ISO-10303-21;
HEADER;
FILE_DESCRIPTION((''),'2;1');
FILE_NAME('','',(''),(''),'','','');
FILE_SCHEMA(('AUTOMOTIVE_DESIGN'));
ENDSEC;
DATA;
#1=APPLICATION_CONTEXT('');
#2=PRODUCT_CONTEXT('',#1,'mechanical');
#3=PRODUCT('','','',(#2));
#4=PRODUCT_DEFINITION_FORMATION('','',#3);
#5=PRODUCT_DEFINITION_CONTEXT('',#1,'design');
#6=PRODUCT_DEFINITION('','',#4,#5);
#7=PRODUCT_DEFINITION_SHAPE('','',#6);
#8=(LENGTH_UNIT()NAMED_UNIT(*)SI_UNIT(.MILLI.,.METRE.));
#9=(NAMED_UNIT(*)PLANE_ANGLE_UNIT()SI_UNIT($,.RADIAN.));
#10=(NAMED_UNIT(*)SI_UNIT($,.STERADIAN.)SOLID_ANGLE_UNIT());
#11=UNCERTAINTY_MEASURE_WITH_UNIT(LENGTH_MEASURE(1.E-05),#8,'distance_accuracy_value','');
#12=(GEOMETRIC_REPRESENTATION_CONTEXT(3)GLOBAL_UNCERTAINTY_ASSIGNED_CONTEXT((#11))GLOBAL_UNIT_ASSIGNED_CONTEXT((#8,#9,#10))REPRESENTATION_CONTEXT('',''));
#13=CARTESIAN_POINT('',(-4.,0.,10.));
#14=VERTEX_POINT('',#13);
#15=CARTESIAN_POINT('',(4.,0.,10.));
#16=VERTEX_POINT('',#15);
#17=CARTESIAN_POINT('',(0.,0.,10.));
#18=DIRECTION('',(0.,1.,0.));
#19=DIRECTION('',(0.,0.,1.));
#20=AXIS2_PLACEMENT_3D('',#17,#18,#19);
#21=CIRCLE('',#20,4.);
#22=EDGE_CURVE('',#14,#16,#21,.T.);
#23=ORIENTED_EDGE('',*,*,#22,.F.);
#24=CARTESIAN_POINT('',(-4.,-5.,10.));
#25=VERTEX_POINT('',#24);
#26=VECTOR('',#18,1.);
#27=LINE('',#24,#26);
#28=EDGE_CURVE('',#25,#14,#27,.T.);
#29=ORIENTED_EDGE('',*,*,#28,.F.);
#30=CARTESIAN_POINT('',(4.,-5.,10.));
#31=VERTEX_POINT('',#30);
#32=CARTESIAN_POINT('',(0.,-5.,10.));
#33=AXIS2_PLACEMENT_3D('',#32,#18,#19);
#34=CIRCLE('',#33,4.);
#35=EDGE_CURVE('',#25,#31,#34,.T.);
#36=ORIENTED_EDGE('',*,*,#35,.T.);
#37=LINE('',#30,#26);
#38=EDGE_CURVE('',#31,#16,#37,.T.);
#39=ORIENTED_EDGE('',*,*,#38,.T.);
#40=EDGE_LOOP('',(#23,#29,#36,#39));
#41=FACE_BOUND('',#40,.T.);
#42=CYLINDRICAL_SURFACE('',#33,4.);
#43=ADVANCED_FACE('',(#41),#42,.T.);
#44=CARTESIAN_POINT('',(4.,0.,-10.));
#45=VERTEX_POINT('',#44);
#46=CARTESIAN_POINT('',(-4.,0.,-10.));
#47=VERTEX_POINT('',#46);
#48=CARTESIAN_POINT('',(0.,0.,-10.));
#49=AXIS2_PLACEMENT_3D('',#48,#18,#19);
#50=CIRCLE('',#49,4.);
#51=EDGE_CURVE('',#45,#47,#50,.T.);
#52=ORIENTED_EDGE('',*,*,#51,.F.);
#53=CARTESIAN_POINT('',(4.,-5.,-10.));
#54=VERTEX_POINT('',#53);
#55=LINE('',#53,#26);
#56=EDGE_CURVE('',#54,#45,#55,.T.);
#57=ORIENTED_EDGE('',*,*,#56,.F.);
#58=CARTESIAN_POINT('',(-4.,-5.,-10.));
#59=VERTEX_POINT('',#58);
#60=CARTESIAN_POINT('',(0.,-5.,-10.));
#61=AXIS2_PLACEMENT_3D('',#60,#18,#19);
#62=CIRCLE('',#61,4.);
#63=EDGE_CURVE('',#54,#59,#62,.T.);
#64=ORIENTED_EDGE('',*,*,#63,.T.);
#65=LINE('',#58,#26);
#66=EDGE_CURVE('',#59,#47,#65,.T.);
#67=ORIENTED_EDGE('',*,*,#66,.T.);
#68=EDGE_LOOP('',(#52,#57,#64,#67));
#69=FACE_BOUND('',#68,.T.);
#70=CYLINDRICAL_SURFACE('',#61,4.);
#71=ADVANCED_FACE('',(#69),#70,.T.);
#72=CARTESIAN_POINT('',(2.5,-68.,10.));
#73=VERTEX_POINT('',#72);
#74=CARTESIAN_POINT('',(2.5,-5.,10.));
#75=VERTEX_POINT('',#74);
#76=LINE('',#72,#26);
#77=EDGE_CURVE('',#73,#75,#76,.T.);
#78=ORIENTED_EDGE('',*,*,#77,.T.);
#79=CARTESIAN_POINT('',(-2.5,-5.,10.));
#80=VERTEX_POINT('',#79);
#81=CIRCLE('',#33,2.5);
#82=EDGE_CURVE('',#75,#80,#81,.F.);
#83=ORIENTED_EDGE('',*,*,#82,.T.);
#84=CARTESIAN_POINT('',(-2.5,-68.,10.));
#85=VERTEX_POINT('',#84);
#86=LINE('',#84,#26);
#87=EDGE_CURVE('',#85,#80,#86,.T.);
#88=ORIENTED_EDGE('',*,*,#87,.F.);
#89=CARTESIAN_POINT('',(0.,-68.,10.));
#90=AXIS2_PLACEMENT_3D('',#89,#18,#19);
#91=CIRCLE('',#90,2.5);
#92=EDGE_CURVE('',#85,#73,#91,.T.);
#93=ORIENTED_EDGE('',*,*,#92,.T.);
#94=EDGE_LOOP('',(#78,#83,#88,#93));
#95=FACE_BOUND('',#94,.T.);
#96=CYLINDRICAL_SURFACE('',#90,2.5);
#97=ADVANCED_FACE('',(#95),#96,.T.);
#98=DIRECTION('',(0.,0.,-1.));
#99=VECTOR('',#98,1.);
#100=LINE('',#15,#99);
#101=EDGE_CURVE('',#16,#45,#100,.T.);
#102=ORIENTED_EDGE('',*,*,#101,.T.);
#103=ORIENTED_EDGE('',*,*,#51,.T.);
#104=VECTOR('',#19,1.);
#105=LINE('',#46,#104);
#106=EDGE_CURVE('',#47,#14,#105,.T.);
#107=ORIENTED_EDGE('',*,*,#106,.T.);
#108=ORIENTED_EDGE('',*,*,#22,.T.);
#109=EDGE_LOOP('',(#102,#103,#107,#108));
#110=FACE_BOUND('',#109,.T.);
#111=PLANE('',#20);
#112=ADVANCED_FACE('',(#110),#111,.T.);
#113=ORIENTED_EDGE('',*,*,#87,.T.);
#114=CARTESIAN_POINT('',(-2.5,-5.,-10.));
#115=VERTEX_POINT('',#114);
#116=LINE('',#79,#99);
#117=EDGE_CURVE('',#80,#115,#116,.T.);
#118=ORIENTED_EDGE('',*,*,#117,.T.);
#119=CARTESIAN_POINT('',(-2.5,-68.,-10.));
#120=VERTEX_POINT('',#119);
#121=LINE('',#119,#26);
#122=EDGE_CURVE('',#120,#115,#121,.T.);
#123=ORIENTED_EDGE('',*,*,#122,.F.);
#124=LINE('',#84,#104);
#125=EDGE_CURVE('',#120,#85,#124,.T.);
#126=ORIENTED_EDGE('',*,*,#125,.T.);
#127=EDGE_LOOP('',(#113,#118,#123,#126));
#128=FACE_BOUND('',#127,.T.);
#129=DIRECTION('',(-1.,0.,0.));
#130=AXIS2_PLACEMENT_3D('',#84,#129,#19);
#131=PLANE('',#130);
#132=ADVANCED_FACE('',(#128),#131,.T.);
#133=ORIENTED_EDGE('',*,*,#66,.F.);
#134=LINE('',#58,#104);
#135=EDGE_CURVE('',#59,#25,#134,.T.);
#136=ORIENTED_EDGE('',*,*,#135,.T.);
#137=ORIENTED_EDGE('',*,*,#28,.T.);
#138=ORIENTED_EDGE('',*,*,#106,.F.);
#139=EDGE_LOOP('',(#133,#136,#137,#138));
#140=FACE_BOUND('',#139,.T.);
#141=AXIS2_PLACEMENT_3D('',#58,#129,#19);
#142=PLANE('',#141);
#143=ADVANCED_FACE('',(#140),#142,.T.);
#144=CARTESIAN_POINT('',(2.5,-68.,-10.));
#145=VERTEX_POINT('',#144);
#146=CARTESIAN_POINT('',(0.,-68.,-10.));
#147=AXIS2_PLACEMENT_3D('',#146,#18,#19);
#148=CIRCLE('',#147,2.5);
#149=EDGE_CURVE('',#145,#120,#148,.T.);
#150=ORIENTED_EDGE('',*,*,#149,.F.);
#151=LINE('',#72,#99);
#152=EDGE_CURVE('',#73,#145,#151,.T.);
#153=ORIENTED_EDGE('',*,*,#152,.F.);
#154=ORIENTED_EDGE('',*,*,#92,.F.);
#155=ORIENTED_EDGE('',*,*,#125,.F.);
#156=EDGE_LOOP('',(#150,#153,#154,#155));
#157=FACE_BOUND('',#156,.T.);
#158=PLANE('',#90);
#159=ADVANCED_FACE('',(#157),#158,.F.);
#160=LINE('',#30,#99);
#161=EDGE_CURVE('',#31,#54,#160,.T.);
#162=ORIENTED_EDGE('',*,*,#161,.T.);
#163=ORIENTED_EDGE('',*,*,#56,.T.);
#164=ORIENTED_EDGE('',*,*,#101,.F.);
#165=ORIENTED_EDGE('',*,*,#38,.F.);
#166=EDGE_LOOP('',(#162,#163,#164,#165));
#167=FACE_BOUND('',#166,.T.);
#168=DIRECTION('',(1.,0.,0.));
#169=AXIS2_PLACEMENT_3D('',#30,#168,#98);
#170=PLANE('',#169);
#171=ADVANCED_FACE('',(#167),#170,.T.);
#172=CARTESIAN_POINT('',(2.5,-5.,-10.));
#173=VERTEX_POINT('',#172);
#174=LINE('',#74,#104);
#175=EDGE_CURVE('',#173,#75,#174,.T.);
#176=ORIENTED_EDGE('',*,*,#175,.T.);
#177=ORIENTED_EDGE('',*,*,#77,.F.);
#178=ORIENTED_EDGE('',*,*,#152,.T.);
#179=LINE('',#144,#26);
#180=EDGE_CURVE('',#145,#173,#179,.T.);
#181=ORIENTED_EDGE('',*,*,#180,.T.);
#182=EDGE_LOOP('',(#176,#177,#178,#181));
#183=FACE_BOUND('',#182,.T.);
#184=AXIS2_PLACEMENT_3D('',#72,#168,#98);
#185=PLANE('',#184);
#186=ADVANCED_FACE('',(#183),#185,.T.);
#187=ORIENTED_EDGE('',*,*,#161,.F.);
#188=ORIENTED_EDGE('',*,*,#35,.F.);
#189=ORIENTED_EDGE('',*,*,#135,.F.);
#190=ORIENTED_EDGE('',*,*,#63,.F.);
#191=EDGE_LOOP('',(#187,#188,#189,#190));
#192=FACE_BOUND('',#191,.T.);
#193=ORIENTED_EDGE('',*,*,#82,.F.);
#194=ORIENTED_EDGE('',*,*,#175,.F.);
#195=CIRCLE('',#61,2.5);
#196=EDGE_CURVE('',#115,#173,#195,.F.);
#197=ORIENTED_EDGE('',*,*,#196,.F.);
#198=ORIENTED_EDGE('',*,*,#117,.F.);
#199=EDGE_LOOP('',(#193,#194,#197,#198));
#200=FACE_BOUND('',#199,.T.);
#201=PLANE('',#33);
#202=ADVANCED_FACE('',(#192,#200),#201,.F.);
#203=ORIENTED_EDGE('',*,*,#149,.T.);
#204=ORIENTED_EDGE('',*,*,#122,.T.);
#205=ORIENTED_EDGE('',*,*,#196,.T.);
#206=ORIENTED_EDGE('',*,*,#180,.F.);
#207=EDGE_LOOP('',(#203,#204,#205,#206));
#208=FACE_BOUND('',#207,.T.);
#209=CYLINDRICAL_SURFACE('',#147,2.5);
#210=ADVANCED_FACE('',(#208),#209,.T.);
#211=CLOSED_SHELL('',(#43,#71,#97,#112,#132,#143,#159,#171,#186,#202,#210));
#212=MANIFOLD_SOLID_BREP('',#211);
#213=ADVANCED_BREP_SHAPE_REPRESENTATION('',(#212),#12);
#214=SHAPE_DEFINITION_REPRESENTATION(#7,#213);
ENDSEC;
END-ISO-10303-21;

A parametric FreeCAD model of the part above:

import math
import FreeCAD as App
import Part
import Sketcher

V = App.Vector

doc = App.newDocument("Part")
params = doc.addObject("Spreadsheet::Sheet", "Params")
for row, (alias, value) in enumerate([
    ("sketch1_radius", "2.5 mm"),
    ("sketch1_height", "20 mm"),
    ("pad1_length", "68 mm"),
    ("sketch2_radius", "4 mm"),
    ("sketch2_height", "20 mm"),
    ("pad2_length", "5 mm"),
], start=1):
    params.set(f"A{row}", alias)
    params.set(f"B{row}", "=" + value)
    params.setAlias(f"B{row}", alias)

body = doc.addObject("PartDesign::Body", "Body")

sketch1 = body.newObject("Sketcher::SketchObject", "Sketch")
sketch1.AttachmentSupport = (doc.getObject("XZ_Plane"), [""])
sketch1.MapMode = "FlatFace"
sketch1.addGeometry([
    Part.LineSegment(V(-2.5, -10, 0), V(-2.5, 10, 0)),
    Part.ArcOfCircle(Part.Circle(V(0, 10, 0), V(0, 0, 1), 2.5), math.radians(0), math.radians(180)),
    Part.LineSegment(V(2.5, 10, 0), V(2.5, -10, 0)),
    Part.ArcOfCircle(Part.Circle(V(0, -10, 0), V(0, 0, 1), 2.5), math.radians(180), math.radians(360)),
], False)
sketch1.addConstraint([
    Sketcher.Constraint("Tangent", 0, 2, 1, 2),
    Sketcher.Constraint("Tangent", 1, 1, 2, 1),
    Sketcher.Constraint("Tangent", 2, 2, 3, 2),
    Sketcher.Constraint("Tangent", 3, 1, 0, 1),
    Sketcher.Constraint("Vertical", 0),
    Sketcher.Constraint("Vertical", 2),
    Sketcher.Constraint("Symmetric", 1, 3, 3, 3, -1, 1),
    Sketcher.Constraint("Radius", 1, 2.5),
    Sketcher.Constraint("DistanceY", 0, 1, 0, 2, 20.0),
])
sketch1.setExpression("Constraints[7]", "Params.sketch1_radius")
sketch1.setExpression("Constraints[8]", "Params.sketch1_height")
pad1 = body.newObject("PartDesign::Pad", "Pad")
pad1.Profile = sketch1
pad1.setExpression("Length", "Params.pad1_length")

sketch2 = body.newObject("Sketcher::SketchObject", "Sketch001")
sketch2.AttachmentSupport = (doc.getObject("XZ_Plane"), [""])
sketch2.MapMode = "FlatFace"
sketch2.addGeometry([
    Part.LineSegment(V(4, 10, 0), V(4, -10, 0)),
    Part.ArcOfCircle(Part.Circle(V(0, -10, 0), V(0, 0, 1), 4), math.radians(180), math.radians(360)),
    Part.LineSegment(V(-4, -10, 0), V(-4, 10, 0)),
    Part.ArcOfCircle(Part.Circle(V(0, 10, 0), V(0, 0, 1), 4), math.radians(0), math.radians(180)),
], False)
sketch2.addConstraint([
    Sketcher.Constraint("Tangent", 0, 2, 1, 2),
    Sketcher.Constraint("Tangent", 1, 1, 2, 1),
    Sketcher.Constraint("Tangent", 2, 2, 3, 2),
    Sketcher.Constraint("Tangent", 3, 1, 0, 1),
    Sketcher.Constraint("Vertical", 0),
    Sketcher.Constraint("Vertical", 2),
    Sketcher.Constraint("Symmetric", 1, 3, 3, 3, -1, 1),
    Sketcher.Constraint("Radius", 1, 4.0),
    Sketcher.Constraint("DistanceY", 0, 2, 0, 1, 20.0),
])
sketch2.setExpression("Constraints[7]", "Params.sketch2_radius")
sketch2.setExpression("Constraints[8]", "Params.sketch2_height")
pad2 = body.newObject("PartDesign::Pad", "Pad001")
pad2.Profile = sketch2
pad2.setExpression("Length", "Params.pad2_length")

doc.recompute()
